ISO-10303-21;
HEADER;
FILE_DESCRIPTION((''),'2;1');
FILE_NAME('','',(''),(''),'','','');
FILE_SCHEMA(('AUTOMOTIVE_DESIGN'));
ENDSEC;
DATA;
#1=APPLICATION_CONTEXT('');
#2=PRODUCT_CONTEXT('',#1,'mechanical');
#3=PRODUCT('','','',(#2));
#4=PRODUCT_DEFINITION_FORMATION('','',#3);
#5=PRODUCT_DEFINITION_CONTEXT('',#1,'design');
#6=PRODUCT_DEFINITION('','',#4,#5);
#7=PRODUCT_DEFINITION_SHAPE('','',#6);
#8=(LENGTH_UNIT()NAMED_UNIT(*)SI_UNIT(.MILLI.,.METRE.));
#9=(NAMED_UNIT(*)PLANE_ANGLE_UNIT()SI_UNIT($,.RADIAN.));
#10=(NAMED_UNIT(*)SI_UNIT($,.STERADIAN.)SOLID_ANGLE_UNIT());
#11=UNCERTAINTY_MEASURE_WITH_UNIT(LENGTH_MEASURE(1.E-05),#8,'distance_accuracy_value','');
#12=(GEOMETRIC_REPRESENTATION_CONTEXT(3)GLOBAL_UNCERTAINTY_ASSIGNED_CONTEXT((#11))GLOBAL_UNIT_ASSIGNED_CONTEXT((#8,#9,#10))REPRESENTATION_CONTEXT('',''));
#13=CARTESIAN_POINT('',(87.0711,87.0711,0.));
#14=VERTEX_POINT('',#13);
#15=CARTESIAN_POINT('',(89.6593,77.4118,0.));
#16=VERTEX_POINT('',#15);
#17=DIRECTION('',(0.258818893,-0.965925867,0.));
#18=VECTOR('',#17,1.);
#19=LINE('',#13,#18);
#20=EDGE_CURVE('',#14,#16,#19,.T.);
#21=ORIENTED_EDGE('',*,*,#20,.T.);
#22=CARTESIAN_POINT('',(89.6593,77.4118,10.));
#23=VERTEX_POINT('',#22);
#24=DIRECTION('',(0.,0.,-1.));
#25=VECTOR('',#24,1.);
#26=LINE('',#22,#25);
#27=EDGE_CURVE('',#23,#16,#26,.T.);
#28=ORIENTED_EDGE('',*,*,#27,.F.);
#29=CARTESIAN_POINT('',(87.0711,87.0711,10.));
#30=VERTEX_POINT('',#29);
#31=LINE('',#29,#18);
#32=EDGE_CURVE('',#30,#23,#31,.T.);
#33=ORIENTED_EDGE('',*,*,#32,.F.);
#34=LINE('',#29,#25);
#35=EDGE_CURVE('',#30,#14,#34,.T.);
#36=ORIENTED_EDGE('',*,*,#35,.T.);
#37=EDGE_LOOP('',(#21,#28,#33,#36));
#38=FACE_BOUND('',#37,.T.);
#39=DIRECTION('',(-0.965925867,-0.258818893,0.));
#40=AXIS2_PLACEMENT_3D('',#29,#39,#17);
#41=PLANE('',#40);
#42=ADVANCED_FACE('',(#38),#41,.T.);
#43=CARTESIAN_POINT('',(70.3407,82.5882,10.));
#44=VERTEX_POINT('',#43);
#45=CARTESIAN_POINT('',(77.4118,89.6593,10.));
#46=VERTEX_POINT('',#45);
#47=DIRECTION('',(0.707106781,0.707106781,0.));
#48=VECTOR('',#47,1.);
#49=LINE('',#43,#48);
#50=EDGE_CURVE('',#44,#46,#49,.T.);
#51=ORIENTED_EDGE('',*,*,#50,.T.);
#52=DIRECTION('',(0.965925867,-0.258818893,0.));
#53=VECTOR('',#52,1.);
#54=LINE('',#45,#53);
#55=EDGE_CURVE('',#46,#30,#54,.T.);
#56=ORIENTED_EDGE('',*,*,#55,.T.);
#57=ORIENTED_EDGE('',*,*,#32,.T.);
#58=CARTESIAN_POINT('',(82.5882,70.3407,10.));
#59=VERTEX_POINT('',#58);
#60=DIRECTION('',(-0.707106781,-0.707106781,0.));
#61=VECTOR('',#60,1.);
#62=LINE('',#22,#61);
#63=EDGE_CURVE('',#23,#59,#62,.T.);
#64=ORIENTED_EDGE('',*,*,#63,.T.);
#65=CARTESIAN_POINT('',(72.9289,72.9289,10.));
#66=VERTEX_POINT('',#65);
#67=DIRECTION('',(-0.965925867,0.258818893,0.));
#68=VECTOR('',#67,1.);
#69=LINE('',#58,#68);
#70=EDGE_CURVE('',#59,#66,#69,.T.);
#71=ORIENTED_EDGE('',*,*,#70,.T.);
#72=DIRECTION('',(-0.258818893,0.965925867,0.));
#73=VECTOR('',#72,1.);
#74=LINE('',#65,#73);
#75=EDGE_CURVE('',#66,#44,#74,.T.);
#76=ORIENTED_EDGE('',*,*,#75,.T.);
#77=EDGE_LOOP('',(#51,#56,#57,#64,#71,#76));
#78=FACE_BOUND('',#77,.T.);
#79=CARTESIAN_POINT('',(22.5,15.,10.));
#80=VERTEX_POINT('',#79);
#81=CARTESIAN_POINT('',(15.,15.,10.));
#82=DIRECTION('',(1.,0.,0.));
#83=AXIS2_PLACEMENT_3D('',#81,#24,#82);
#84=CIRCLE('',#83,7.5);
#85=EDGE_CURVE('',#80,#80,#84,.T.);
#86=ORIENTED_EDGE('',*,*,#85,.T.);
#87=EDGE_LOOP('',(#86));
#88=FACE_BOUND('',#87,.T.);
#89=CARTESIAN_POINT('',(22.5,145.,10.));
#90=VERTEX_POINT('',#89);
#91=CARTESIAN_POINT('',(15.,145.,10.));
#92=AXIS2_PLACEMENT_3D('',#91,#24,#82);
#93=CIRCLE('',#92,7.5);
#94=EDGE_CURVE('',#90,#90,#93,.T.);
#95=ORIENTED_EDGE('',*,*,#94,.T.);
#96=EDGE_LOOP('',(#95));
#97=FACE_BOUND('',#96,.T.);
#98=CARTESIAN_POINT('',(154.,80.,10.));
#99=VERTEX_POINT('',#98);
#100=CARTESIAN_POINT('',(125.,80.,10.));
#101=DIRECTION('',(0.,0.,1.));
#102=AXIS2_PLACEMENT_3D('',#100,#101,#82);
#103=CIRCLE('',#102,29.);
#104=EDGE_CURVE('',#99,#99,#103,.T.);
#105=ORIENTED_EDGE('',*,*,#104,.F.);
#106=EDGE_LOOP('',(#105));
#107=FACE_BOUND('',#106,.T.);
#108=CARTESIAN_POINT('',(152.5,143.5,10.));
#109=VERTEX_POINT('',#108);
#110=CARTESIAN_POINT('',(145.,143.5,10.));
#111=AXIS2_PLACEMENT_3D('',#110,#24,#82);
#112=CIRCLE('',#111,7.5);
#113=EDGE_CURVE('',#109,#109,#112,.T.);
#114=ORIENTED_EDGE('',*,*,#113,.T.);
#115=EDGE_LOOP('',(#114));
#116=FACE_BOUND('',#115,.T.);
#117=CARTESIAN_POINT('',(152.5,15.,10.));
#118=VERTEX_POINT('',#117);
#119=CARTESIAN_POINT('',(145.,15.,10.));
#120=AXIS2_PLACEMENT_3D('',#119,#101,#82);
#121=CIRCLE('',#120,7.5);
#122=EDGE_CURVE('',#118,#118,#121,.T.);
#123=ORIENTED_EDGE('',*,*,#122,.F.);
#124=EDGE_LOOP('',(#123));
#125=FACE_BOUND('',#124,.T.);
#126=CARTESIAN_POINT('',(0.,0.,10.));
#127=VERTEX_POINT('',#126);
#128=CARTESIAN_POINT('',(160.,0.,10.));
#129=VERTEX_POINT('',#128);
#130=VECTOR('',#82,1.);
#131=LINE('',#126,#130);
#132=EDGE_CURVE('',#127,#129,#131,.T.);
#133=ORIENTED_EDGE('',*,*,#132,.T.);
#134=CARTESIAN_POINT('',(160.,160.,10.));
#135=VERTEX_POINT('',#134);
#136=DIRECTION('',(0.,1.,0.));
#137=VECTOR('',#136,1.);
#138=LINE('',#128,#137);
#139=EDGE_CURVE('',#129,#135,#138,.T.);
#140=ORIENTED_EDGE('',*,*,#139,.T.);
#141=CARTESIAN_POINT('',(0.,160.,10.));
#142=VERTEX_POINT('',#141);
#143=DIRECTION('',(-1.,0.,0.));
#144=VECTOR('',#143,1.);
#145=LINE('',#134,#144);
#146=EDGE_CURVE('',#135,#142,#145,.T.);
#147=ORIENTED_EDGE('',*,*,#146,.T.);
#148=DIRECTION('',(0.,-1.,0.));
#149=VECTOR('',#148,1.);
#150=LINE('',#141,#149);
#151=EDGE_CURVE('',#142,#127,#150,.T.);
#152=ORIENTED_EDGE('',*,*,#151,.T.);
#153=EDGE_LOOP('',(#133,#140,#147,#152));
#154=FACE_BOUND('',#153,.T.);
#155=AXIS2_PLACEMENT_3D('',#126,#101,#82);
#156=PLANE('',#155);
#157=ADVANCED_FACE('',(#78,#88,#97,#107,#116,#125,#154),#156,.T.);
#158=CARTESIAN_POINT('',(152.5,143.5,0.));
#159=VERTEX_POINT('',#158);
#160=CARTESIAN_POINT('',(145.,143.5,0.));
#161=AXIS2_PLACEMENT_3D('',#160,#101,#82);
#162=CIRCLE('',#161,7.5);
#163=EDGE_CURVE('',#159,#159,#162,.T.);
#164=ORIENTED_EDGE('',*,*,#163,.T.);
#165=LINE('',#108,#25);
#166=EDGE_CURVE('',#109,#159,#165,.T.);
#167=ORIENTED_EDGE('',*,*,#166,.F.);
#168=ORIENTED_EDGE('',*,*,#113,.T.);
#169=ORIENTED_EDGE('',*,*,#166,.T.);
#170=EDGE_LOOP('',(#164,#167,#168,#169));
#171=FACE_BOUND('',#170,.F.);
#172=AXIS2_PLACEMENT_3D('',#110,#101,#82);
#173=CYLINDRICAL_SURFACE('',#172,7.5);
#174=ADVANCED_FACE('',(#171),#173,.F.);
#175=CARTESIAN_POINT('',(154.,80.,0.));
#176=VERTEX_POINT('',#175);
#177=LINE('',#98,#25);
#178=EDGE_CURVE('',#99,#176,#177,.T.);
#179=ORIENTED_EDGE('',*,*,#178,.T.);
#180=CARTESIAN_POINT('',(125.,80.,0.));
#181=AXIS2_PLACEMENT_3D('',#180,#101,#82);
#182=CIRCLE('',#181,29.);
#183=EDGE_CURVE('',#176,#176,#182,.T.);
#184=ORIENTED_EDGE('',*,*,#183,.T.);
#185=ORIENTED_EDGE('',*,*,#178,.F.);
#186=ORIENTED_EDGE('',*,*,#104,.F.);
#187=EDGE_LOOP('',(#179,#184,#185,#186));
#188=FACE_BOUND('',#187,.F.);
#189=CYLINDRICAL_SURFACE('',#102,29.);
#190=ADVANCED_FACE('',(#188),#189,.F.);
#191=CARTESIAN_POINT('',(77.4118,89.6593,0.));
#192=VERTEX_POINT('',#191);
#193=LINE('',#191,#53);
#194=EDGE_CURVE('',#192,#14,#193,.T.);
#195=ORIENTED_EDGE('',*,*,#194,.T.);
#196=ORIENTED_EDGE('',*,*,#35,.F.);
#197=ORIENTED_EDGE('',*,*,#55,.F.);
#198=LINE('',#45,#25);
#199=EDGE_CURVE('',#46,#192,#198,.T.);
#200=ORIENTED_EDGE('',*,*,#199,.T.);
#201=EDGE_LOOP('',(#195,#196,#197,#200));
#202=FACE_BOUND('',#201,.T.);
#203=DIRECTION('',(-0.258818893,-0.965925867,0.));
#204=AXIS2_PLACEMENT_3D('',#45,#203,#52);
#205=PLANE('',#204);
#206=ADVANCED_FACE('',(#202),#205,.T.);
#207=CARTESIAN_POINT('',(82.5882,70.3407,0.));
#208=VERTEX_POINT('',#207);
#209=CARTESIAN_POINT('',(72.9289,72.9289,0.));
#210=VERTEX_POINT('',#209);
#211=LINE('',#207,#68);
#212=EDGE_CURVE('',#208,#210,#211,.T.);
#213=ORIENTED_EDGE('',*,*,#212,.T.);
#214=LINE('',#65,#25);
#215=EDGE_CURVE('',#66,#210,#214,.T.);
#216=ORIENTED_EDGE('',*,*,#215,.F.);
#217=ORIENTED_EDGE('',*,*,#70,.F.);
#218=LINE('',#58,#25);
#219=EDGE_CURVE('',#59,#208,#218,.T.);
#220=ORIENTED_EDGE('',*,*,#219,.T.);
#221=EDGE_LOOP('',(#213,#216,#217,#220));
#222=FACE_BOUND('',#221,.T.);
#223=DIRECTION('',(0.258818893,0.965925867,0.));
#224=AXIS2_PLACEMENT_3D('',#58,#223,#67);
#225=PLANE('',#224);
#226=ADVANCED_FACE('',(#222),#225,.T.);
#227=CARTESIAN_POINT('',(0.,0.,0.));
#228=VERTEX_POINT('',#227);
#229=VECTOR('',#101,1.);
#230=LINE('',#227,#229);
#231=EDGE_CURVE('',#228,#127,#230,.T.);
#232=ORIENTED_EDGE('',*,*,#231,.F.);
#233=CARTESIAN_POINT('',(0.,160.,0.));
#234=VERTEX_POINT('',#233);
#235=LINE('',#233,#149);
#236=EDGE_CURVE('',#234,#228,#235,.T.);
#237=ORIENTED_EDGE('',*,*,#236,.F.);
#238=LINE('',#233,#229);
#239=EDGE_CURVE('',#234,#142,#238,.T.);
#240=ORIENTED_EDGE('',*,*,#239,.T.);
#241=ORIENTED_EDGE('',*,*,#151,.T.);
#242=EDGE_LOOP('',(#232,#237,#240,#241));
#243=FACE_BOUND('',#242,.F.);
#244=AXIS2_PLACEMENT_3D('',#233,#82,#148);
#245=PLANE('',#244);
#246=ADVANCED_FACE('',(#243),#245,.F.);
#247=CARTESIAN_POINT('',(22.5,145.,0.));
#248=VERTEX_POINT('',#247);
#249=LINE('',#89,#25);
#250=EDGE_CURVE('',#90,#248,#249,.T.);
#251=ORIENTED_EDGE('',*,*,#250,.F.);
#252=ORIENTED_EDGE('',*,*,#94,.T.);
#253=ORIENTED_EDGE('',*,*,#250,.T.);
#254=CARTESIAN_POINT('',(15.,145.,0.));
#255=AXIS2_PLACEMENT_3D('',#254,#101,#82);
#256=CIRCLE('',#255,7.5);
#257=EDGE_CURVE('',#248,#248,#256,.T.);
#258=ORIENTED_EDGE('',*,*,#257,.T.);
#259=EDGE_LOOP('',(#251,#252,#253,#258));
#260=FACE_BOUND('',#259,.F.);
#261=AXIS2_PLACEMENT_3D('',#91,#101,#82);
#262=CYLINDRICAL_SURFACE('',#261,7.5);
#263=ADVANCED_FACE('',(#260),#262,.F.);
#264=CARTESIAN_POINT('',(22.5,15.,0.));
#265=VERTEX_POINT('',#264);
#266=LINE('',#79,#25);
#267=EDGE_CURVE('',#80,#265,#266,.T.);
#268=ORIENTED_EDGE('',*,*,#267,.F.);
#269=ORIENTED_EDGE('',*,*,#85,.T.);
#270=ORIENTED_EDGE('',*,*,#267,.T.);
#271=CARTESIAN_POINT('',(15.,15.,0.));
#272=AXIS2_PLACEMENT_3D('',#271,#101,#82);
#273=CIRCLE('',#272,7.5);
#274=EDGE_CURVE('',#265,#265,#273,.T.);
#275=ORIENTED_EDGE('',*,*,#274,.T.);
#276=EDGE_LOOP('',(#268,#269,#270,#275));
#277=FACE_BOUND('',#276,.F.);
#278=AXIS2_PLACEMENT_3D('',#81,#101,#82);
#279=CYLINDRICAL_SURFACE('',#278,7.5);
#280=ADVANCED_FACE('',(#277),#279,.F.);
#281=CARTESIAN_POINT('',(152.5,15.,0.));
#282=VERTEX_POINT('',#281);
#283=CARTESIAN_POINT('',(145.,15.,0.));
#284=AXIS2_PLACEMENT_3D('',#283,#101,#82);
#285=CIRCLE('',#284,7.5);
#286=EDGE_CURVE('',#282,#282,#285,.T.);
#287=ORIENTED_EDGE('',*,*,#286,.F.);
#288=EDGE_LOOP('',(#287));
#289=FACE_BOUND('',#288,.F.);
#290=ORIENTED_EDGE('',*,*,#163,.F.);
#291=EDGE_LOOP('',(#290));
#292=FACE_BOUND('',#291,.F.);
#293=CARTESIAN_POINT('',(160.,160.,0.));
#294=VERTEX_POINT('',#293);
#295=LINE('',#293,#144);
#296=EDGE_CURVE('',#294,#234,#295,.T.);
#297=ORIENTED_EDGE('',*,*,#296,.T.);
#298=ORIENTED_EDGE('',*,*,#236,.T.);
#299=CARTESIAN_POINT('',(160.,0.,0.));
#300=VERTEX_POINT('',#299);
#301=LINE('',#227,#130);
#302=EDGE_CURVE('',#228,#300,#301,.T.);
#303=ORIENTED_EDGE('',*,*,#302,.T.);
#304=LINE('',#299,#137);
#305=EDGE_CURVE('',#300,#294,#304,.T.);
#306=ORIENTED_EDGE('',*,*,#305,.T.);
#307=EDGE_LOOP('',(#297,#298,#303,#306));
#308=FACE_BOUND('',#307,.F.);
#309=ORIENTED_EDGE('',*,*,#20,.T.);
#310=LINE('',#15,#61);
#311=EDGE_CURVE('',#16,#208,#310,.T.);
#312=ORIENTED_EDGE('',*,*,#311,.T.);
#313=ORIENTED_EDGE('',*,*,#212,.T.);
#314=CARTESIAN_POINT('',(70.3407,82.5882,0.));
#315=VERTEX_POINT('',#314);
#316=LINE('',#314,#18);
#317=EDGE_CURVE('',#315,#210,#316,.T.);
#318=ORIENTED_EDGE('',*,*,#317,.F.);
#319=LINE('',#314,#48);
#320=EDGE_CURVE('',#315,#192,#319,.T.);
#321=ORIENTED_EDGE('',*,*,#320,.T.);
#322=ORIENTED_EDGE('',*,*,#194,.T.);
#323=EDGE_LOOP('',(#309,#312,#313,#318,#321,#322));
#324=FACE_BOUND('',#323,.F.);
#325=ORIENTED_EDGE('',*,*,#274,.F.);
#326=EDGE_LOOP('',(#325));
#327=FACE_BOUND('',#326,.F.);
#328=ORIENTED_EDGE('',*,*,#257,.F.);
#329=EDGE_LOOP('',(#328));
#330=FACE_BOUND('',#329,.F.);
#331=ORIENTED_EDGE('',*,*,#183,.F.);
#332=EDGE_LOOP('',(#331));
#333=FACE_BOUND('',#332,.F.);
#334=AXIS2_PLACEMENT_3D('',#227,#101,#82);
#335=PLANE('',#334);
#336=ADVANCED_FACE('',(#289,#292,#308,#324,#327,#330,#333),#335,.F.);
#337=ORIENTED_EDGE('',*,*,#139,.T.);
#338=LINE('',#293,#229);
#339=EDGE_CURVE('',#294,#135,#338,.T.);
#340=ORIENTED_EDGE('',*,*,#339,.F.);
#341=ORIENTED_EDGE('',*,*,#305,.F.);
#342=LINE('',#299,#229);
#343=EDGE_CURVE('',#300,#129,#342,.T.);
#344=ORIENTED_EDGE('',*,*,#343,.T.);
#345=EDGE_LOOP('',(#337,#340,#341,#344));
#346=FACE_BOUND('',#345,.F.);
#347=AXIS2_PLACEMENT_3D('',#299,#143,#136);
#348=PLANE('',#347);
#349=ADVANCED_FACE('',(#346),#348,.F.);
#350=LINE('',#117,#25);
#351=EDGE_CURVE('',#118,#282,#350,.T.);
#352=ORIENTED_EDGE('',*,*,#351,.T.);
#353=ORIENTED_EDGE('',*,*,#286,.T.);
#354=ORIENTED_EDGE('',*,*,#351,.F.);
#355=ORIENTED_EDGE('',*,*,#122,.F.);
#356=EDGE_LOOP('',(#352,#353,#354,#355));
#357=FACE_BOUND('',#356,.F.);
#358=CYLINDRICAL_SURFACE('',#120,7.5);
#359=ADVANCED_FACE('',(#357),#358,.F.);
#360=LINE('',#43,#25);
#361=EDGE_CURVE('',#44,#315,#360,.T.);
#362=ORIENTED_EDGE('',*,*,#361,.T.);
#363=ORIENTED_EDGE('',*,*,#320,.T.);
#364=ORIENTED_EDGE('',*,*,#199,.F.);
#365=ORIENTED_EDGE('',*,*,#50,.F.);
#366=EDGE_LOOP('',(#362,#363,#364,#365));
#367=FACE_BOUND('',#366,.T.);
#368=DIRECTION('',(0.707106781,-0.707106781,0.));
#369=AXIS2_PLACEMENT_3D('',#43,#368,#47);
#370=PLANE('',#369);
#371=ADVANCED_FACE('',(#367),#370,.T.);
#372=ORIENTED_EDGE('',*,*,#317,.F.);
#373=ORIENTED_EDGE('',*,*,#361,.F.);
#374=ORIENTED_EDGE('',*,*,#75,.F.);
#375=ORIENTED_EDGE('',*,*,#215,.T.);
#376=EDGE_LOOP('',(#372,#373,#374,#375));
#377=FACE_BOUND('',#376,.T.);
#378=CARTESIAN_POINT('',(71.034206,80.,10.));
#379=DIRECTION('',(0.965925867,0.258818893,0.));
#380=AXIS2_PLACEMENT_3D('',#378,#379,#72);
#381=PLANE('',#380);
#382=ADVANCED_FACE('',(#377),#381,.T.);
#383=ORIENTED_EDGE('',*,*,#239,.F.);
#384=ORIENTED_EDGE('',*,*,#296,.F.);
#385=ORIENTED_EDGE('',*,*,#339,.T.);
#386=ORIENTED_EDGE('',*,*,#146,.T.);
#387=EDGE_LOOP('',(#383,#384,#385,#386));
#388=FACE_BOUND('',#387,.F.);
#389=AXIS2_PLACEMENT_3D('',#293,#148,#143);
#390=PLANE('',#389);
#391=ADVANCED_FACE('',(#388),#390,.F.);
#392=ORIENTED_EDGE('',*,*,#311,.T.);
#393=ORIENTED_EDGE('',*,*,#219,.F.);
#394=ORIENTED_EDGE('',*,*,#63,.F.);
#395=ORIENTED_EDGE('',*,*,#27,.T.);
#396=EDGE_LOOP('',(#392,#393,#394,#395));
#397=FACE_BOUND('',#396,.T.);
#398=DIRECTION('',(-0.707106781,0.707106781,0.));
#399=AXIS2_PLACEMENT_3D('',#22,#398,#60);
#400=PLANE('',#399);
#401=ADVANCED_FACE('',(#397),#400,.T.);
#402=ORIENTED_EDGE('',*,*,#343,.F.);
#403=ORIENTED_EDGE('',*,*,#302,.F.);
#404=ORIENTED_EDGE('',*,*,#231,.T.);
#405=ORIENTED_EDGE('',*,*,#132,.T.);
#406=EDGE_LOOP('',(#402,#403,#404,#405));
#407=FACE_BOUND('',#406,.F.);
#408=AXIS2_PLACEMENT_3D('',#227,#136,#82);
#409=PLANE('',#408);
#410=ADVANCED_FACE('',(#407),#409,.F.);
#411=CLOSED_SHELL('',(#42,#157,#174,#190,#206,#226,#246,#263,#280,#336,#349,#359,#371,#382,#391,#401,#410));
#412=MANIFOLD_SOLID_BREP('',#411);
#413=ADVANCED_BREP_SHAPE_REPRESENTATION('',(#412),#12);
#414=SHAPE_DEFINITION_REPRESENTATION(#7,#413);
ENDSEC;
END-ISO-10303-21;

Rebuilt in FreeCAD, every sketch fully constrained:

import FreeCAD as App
import Part
import Sketcher
Q = App.Units.Quantity

doc = App.newDocument("Part")
body = doc.addObject("PartDesign::Body", "Body")

sketch1 = doc.addObject("Sketcher::SketchObject", "Sketch")
body.addObject(sketch1)
sketch1.AttachmentSupport = (doc.XY_Plane, [""])
sketch1.MapMode = "FlatFace"
sketch1.addGeometry([
    Part.LineSegment(App.Vector(0, 160, 0), App.Vector(0, 0, 0)),
    Part.LineSegment(App.Vector(0, 0, 0), App.Vector(160, 0, 0)),
    Part.LineSegment(App.Vector(160, 0, 0), App.Vector(160, 160, 0)),
    Part.LineSegment(App.Vector(160, 160, 0), App.Vector(0, 160, 0)),
], False)
sketch1.addConstraint([
    Sketcher.Constraint("Coincident", 0, 2, 1, 1),
    Sketcher.Constraint("Coincident", 1, 2, 2, 1),
    Sketcher.Constraint("Coincident", 2, 2, 3, 1),
    Sketcher.Constraint("Coincident", 3, 2, 0, 1),
    Sketcher.Constraint("Vertical", 0),
    Sketcher.Constraint("Horizontal", 1),
    Sketcher.Constraint("Vertical", 2),
    Sketcher.Constraint("Horizontal", 3),
    Sketcher.Constraint("Coincident", 0, 2, -1, 1),
    Sketcher.Constraint("Equal", 3, 0),
    Sketcher.Constraint("DistanceX", 1, 1, 1, 2, 160.0),
])
pad1 = doc.addObject("PartDesign::Pad", "Pad")
body.addObject(pad1)
pad1.Profile = sketch1
pad1.Length = 10

sketch2 = doc.addObject("Sketcher::SketchObject", "Sketch001")
body.addObject(sketch2)
sketch2.AttachmentSupport = (doc.XY_Plane, [""])
sketch2.MapMode = "FlatFace"
sketch2.AttachmentOffset = App.Placement(App.Vector(0, 0, 10), App.Rotation())
sketch2.addGeometry([
    Part.Circle(App.Vector(145, 15, 0), App.Vector(0, 0, 1), 7.5),
    Part.Circle(App.Vector(145, 143.5, 0), App.Vector(0, 0, 1), 7.5),
    Part.Circle(App.Vector(15, 145, 0), App.Vector(0, 0, 1), 7.5),
    Part.Circle(App.Vector(15, 15, 0), App.Vector(0, 0, 1), 7.5),
], False)
sketch2.addConstraint([
    Sketcher.Constraint("Equal", 0, 1),
    Sketcher.Constraint("Equal", 1, 2),
    Sketcher.Constraint("Equal", 2, 3),
    Sketcher.Constraint("Horizontal", 0, 3, 3, 3),
    Sketcher.Constraint("Vertical", 0, 3, 1, 3),
    Sketcher.Constraint("Vertical", 2, 3, 3, 3),
    Sketcher.Constraint("Diameter", 0, 15.0),
    Sketcher.Constraint("DistanceY", -1, 1, 0, 3, 15.0),
    Sketcher.Constraint("DistanceX", -1, 1, 2, 3, 15.0),
    Sketcher.Constraint("DistanceX", -1, 1, 0, 3, 145.0),
    Sketcher.Constraint("DistanceY", -1, 1, 2, 3, 145.0),
    Sketcher.Constraint("DistanceY", -1, 1, 1, 3, 143.5),
])
pocket1 = doc.addObject("PartDesign::Pocket", "Pocket")
body.addObject(pocket1)
pocket1.Profile = sketch2
pocket1.Length = 10

sketch3 = doc.addObject("Sketcher::SketchObject", "Sketch002")
body.addObject(sketch3)
sketch3.AttachmentSupport = (doc.XY_Plane, [""])
sketch3.MapMode = "FlatFace"
sketch3.AttachmentOffset = App.Placement(App.Vector(0, 0, 10), App.Rotation())
sketch3.addGeometry([
    Part.LineSegment(App.Vector(89.6593, 77.4118, 0), App.Vector(87.0711, 87.0711, 0)),
    Part.LineSegment(App.Vector(87.0711, 87.0711, 0), App.Vector(77.4118, 89.6593, 0)),
    Part.LineSegment(App.Vector(77.4118, 89.6593, 0), App.Vector(70.3407, 82.5882, 0)),
    Part.LineSegment(App.Vector(70.3407, 82.5882, 0), App.Vector(72.9289, 72.9289, 0)),
    Part.LineSegment(App.Vector(72.9289, 72.9289, 0), App.Vector(82.5882, 70.3407, 0)),
    Part.LineSegment(App.Vector(82.5882, 70.3407, 0), App.Vector(89.6593, 77.4118, 0)),
], False)
sketch3.addConstraint([
    Sketcher.Constraint("Coincident", 0, 2, 1, 1),
    Sketcher.Constraint("Coincident", 1, 2, 2, 1),
    Sketcher.Constraint("Coincident", 2, 2, 3, 1),
    Sketcher.Constraint("Coincident", 3, 2, 4, 1),
    Sketcher.Constraint("Coincident", 4, 2, 5, 1),
    Sketcher.Constraint("Coincident", 5, 2, 0, 1),
    Sketcher.Constraint("Parallel", 0, 3),
    Sketcher.Constraint("Parallel", 1, 4),
    Sketcher.Constraint("Parallel", 2, 5),
    Sketcher.Constraint("Equal", 0, 1),
    Sketcher.Constraint("Equal", 1, 2),
    Sketcher.Constraint("Equal", 2, 3),
    Sketcher.Constraint("Distance", 0, 10.0),
    Sketcher.Constraint("Angle", 0, Q("105 deg")),
    Sketcher.Constraint("Angle", 1, Q("165 deg")),
    Sketcher.Constraint("Angle", 2, Q("-135 deg")),
    Sketcher.Constraint("DistanceX", -1, 1, 0, 2, 87.071),
    Sketcher.Constraint("DistanceY", -1, 1, 0, 2, 87.071),
])
pocket2 = doc.addObject("PartDesign::Pocket", "Pocket001")
body.addObject(pocket2)
pocket2.Profile = sketch3
pocket2.Length = 10

sketch4 = doc.addObject("Sketcher::SketchObject", "Sketch003")
body.addObject(sketch4)
sketch4.AttachmentSupport = (doc.XY_Plane, [""])
sketch4.MapMode = "FlatFace"
sketch4.AttachmentOffset = App.Placement(App.Vector(0, 0, 10), App.Rotation())
sketch4.addGeometry(Part.Circle(App.Vector(125, 80, 0), App.Vector(0, 0, 1), 29), False)
sketch4.addConstraint([
    Sketcher.Constraint("Diameter", 0, 58.0),
    Sketcher.Constraint("DistanceX", -1, 1, 0, 3, 125.0),
    Sketcher.Constraint("DistanceY", -1, 1, 0, 3, 80.0),
])
pocket3 = doc.addObject("PartDesign::Pocket", "Pocket002")
body.addObject(pocket3)
pocket3.Profile = sketch4
pocket3.Length = 10

doc.recompute()
